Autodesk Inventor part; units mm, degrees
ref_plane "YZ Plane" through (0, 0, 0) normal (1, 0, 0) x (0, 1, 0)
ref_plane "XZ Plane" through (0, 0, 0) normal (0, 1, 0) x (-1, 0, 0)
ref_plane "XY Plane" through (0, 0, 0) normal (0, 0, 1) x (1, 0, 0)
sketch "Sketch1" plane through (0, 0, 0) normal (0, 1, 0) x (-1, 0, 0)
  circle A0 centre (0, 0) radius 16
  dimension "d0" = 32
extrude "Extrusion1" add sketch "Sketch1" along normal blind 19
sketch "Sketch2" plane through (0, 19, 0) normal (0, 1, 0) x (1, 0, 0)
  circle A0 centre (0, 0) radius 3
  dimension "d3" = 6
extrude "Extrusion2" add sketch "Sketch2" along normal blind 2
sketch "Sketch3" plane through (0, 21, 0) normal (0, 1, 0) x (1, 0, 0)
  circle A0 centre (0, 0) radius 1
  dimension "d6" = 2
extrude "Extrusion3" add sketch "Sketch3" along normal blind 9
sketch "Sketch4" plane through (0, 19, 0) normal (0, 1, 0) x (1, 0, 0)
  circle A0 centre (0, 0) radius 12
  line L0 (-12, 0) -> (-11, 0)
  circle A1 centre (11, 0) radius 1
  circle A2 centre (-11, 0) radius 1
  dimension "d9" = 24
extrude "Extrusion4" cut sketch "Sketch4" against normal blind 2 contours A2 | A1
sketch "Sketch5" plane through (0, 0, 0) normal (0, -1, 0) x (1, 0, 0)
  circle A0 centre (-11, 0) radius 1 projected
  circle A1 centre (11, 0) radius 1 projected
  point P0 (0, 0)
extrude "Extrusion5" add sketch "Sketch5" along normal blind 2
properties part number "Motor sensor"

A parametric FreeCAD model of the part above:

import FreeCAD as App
import Part
import Sketcher
Q = App.Units.Quantity

doc = App.newDocument("Part")
params = doc.addObject("Spreadsheet::Sheet", "Params")
for row, (alias, value) in enumerate([
    ("sketch1_diameter", "32 mm"),
    ("pad1_length", "19 mm"),
    ("sketch2_diameter", "6 mm"),
    ("pad2_length", "2 mm"),
    ("sketch3_diameter", "2 mm"),
    ("pad3_length", "9 mm"),
    ("sketch4_diameter", "2 mm"),
    ("pocket1_length", "2 mm"),
    ("sketch5_diameter", "2 mm"),
    ("pad4_length", "2 mm"),
], start=1):
    params.set(f"A{row}", alias)
    params.set(f"B{row}", "=" + value)
    params.setAlias(f"B{row}", alias)

body = doc.addObject("PartDesign::Body", "Body")

# Sketch on XZ plane
sketch1 = body.newObject("Sketcher::SketchObject", "Sketch")
sketch1.AttachmentSupport = (doc.getObject("XZ_Plane"), [""])
sketch1.MapMode = "FlatFace"
sketch1.addGeometry(Part.Circle(App.Vector(0, 0, 0), App.Vector(0, 0, 1), 16), False)
sketch1.addConstraint(Sketcher.Constraint("Coincident", 0, 3, -1, 1))
sketch1.addConstraint(Sketcher.Constraint("Diameter", 0, Q("32 mm")))
sketch1.setExpression("Constraints[1]", "Params.sketch1_diameter")
pad1 = body.newObject("PartDesign::Pad", "Pad")
pad1.Profile = sketch1
pad1.setExpression("Length", "Params.pad1_length")
pad1.Reversed = True

# Sketch on XZ plane
sketch2 = body.newObject("Sketcher::SketchObject", "Sketch001")
sketch2.AttachmentSupport = (doc.getObject("XZ_Plane"), [""])
sketch2.MapMode = "FlatFace"
sketch2.AttachmentOffset = App.Placement(App.Vector(0, 0, -19), App.Rotation())
sketch2.addGeometry(Part.Circle(App.Vector(0, 0, 0), App.Vector(0, 0, 1), 3), False)
sketch2.addConstraint(Sketcher.Constraint("Coincident", 0, 3, -1, 1))
sketch2.addConstraint(Sketcher.Constraint("Diameter", 0, Q("6 mm")))
sketch2.setExpression("Constraints[1]", "Params.sketch2_diameter")
pad2 = body.newObject("PartDesign::Pad", "Pad001")
pad2.Profile = sketch2
pad2.setExpression("Length", "Params.pad2_length")
pad2.Reversed = True

# Sketch on XZ plane
sketch3 = body.newObject("Sketcher::SketchObject", "Sketch002")
sketch3.AttachmentSupport = (doc.getObject("XZ_Plane"), [""])
sketch3.MapMode = "FlatFace"
sketch3.AttachmentOffset = App.Placement(App.Vector(0, 0, -21), App.Rotation())
sketch3.addGeometry(Part.Circle(App.Vector(0, 0, 0), App.Vector(0, 0, 1), 1), False)
sketch3.addConstraint(Sketcher.Constraint("Coincident", 0, 3, -1, 1))
sketch3.addConstraint(Sketcher.Constraint("Diameter", 0, Q("2 mm")))
sketch3.setExpression("Constraints[1]", "Params.sketch3_diameter")
pad3 = body.newObject("PartDesign::Pad", "Pad002")
pad3.Profile = sketch3
pad3.setExpression("Length", "Params.pad3_length")
pad3.Reversed = True

# Sketch on XZ plane
sketch4 = body.newObject("Sketcher::SketchObject", "Sketch003")
sketch4.AttachmentSupport = (doc.getObject("XZ_Plane"), [""])
sketch4.MapMode = "FlatFace"
sketch4.AttachmentOffset = App.Placement(App.Vector(0, 0, -19), App.Rotation())
sketch4.addGeometry(Part.Circle(App.Vector(-11, 0, 0), App.Vector(0, 0, 1), 1), False)
sketch4.addGeometry(Part.Circle(App.Vector(11, 0, 0), App.Vector(0, 0, 1), 1), False)
sketch4.addConstraint(Sketcher.Constraint("Equal", 0, 1))
sketch4.addConstraint(Sketcher.Constraint("Symmetric", 0, 3, 1, 3, -1, 1))
sketch4.addConstraint(Sketcher.Constraint("PointOnObject", 0, 3, -1))
sketch4.addConstraint(Sketcher.Constraint("Diameter", 0, Q("2 mm")))
sketch4.addConstraint(Sketcher.Constraint("DistanceX", 0, 3, -1, 1, Q("11 mm")))
sketch4.setExpression("Constraints[3]", "Params.sketch4_diameter")
pocket1 = body.newObject("PartDesign::Pocket", "Pocket")
pocket1.Profile = sketch4
pocket1.setExpression("Length", "Params.pocket1_length")
pocket1.Reversed = True

# Sketch on XZ plane
sketch5 = body.newObject("Sketcher::SketchObject", "Sketch004")
sketch5.AttachmentSupport = (doc.getObject("XZ_Plane"), [""])
sketch5.MapMode = "FlatFace"
sketch5.addGeometry(Part.Circle(App.Vector(-11, 0, 0), App.Vector(0, 0, 1), 1), False)
sketch5.addGeometry(Part.Circle(App.Vector(11, 0, 0), App.Vector(0, 0, 1), 1), False)
sketch5.addConstraint(Sketcher.Constraint("Equal", 0, 1))
sketch5.addConstraint(Sketcher.Constraint("Symmetric", 0, 3, 1, 3, -1, 1))
sketch5.addConstraint(Sketcher.Constraint("PointOnObject", 0, 3, -1))
sketch5.addConstraint(Sketcher.Constraint("Diameter", 0, Q("2 mm")))
sketch5.addConstraint(Sketcher.Constraint("DistanceX", 0, 3, -1, 1, Q("11 mm")))
sketch5.setExpression("Constraints[3]", "Params.sketch5_diameter")
pad4 = body.newObject("PartDesign::Pad", "Pad003")
pad4.Profile = sketch5
pad4.setExpression("Length", "Params.pad4_length")

doc.recompute()
